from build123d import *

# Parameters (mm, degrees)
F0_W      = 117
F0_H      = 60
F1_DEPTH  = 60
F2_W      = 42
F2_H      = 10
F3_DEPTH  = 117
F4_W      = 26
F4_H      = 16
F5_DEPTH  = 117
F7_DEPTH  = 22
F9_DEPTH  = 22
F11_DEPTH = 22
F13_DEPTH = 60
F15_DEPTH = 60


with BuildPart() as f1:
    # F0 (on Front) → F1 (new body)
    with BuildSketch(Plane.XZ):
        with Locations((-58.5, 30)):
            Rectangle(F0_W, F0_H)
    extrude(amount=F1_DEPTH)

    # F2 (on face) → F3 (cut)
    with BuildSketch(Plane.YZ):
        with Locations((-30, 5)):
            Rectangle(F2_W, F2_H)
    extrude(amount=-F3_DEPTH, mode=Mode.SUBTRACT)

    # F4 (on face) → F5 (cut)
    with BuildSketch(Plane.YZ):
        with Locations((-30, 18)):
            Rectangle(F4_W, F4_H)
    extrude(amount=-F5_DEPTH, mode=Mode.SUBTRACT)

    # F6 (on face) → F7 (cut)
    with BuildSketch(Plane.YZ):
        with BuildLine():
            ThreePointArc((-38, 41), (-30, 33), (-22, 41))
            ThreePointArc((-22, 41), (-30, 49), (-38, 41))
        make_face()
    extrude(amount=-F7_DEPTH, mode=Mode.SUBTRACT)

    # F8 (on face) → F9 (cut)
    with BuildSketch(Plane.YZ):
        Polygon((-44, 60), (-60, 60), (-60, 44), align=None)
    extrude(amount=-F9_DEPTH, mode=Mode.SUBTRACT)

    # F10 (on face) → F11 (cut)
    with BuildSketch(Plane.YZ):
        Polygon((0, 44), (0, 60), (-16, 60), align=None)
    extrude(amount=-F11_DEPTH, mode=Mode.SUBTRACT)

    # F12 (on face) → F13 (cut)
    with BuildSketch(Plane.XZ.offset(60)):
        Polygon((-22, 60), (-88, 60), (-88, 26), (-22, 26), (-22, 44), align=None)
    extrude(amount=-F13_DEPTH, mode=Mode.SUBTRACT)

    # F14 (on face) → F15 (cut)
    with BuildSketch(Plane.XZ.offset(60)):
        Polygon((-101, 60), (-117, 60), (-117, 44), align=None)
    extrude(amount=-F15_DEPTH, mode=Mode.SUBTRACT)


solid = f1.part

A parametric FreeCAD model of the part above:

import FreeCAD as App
import Part
import Sketcher
from FreeCAD import Vector
Q = App.Units.Quantity


def add_polygon(sketch, points):
    """Adds a closed chain of lines whose ends are joined by coincident constraints."""
    first, n = sketch.GeometryCount, len(points)
    for a, b in zip(points, points[1:] + points[:1]):
        sketch.addGeometry(Part.LineSegment(App.Vector(*a, 0), App.Vector(*b, 0)), False)
    for i in range(n):
        sketch.addConstraint(Sketcher.Constraint("Coincident", first + i, 2, first + (i + 1) % n, 1))

doc = App.newDocument("Part")
body = doc.addObject("PartDesign::Body", "Body")

# Sketch on XZ plane
sketch1 = body.newObject("Sketcher::SketchObject", "Sketch")
sketch1.AttachmentSupport = (doc.getObject("XZ_Plane"), [""])
sketch1.MapMode = "FlatFace"
add_polygon(sketch1, [(-117, 60), (-117, 0), (0, 0), (0, 60)])  # lines 0-3
sketch1.addConstraint(Sketcher.Constraint("Vertical", 0))
sketch1.addConstraint(Sketcher.Constraint("Horizontal", 1))
sketch1.addConstraint(Sketcher.Constraint("Vertical", 2))
sketch1.addConstraint(Sketcher.Constraint("Horizontal", 3))
sketch1.addConstraint(Sketcher.Constraint("Coincident", 1, 2, -1, 1))
sketch1.addConstraint(Sketcher.Constraint("DistanceX", 1, 1, 1, 2, Q("117 mm")))
sketch1.addConstraint(Sketcher.Constraint("DistanceY", 0, 2, 0, 1, Q("60 mm")))
pad1 = body.newObject("PartDesign::Pad", "Pad")
pad1.Profile = sketch1
pad1.Length = 60

# Sketch on YZ plane
sketch2 = body.newObject("Sketcher::SketchObject", "Sketch001")
sketch2.AttachmentSupport = (doc.getObject("YZ_Plane"), [""])
sketch2.MapMode = "FlatFace"
add_polygon(sketch2, [(-51, 10), (-51, 0), (-9, 0), (-9, 10)])  # lines 0-3
sketch2.addConstraint(Sketcher.Constraint("Vertical", 0))
sketch2.addConstraint(Sketcher.Constraint("Horizontal", 1))
sketch2.addConstraint(Sketcher.Constraint("Vertical", 2))
sketch2.addConstraint(Sketcher.Constraint("Horizontal", 3))
sketch2.addConstraint(Sketcher.Constraint("PointOnObject", 0, 2, -1))
sketch2.addConstraint(Sketcher.Constraint("DistanceX", 1, 1, 1, 2, Q("42 mm")))
sketch2.addConstraint(Sketcher.Constraint("DistanceY", 0, 2, 0, 1, Q("10 mm")))
sketch2.addConstraint(Sketcher.Constraint("DistanceX", 0, 2, -1, 1, Q("51 mm")))
pocket1 = body.newObject("PartDesign::Pocket", "Pocket")
pocket1.Profile = sketch2
pocket1.Length = 117

# Sketch on YZ plane
sketch3 = body.newObject("Sketcher::SketchObject", "Sketch002")
sketch3.AttachmentSupport = (doc.getObject("YZ_Plane"), [""])
sketch3.MapMode = "FlatFace"
add_polygon(sketch3, [(-43, 26), (-43, 10), (-17, 10), (-17, 26)])  # lines 0-3
sketch3.addConstraint(Sketcher.Constraint("Vertical", 0))
sketch3.addConstraint(Sketcher.Constraint("Horizontal", 1))
sketch3.addConstraint(Sketcher.Constraint("Vertical", 2))
sketch3.addConstraint(Sketcher.Constraint("Horizontal", 3))
sketch3.addConstraint(Sketcher.Constraint("DistanceX", 1, 1, 1, 2, Q("26 mm")))
sketch3.addConstraint(Sketcher.Constraint("DistanceY", 0, 2, 0, 1, Q("16 mm")))
sketch3.addConstraint(Sketcher.Constraint("DistanceX", 0, 2, -1, 1, Q("43 mm")))
sketch3.addConstraint(Sketcher.Constraint("DistanceY", -1, 1, 0, 2, Q("10 mm")))
pocket2 = body.newObject("PartDesign::Pocket", "Pocket001")
pocket2.Profile = sketch3
pocket2.Length = 117

# Sketch on YZ plane
sketch4 = body.newObject("Sketcher::SketchObject", "Sketch003")
sketch4.AttachmentSupport = (doc.getObject("YZ_Plane"), [""])
sketch4.MapMode = "FlatFace"
sketch4.addGeometry(Part.Circle(Vector(-30, 41, 0), Vector(0, 0, 1), 8), False)
sketch4.addConstraint(Sketcher.Constraint("Diameter", 0, Q("16 mm")))
sketch4.addConstraint(Sketcher.Constraint("DistanceX", 0, 3, -1, 1, Q("30 mm")))
sketch4.addConstraint(Sketcher.Constraint("DistanceY", -1, 1, 0, 3, Q("41 mm")))
pocket3 = body.newObject("PartDesign::Pocket", "Pocket002")
pocket3.Profile = sketch4
pocket3.Length = 22

# Sketch on YZ plane
sketch5 = body.newObject("Sketcher::SketchObject", "Sketch004")
sketch5.AttachmentSupport = (doc.getObject("YZ_Plane"), [""])
sketch5.MapMode = "FlatFace"
add_polygon(sketch5, [(-44, 60), (-60, 60), (-60, 44)])  # lines 0-2
sketch5.addConstraint(Sketcher.Constraint("Horizontal", 0))
sketch5.addConstraint(Sketcher.Constraint("Vertical", 1))
sketch5.addConstraint(Sketcher.Constraint("Equal", 0, 1))
sketch5.addConstraint(Sketcher.Constraint("DistanceX", 0, 2, 0, 1, Q("16 mm")))
sketch5.addConstraint(Sketcher.Constraint("DistanceX", 0, 2, -1, 1, Q("60 mm")))
sketch5.addConstraint(Sketcher.Constraint("DistanceY", -1, 1, 0, 2, Q("60 mm")))
pocket4 = body.newObject("PartDesign::Pocket", "Pocket003")
pocket4.Profile = sketch5
pocket4.Length = 22

# Sketch on YZ plane
sketch6 = body.newObject("Sketcher::SketchObject", "Sketch005")
sketch6.AttachmentSupport = (doc.getObject("YZ_Plane"), [""])
sketch6.MapMode = "FlatFace"
add_polygon(sketch6, [(0, 44), (0, 60), (-16, 60)])  # lines 0-2
sketch6.addConstraint(Sketcher.Constraint("Vertical", 0))
sketch6.addConstraint(Sketcher.Constraint("Horizontal", 1))
sketch6.addConstraint(Sketcher.Constraint("PointOnObject", 0, 2, -2))
sketch6.addConstraint(Sketcher.Constraint("Equal", 1, 0))
sketch6.addConstraint(Sketcher.Constraint("DistanceX", 1, 2, 1, 1, Q("16 mm")))
sketch6.addConstraint(Sketcher.Constraint("DistanceY", -1, 1, 0, 2, Q("60 mm")))
pocket5 = body.newObject("PartDesign::Pocket", "Pocket004")
pocket5.Profile = sketch6
pocket5.Length = 22

# Sketch on XZ plane
sketch7 = body.newObject("Sketcher::SketchObject", "Sketch006")
sketch7.AttachmentSupport = (doc.getObject("XZ_Plane"), [""])
sketch7.MapMode = "FlatFace"
sketch7.AttachmentOffset = App.Placement(Vector(0, 0, 60), App.Rotation())
add_polygon(sketch7, [(-22, 60), (-88, 60), (-88, 26), (-22, 26)])  # lines 0-3
sketch7.addConstraint(Sketcher.Constraint("Horizontal", 0))
sketch7.addConstraint(Sketcher.Constraint("Vertical", 1))
sketch7.addConstraint(Sketcher.Constraint("Horizontal", 2))
sketch7.addConstraint(Sketcher.Constraint("Vertical", 3))
sketch7.addConstraint(Sketcher.Constraint("DistanceX", 0, 2, 0, 1, Q("66 mm")))
sketch7.addConstraint(Sketcher.Constraint("DistanceY", 1, 2, 1, 1, Q("34 mm")))
sketch7.addConstraint(Sketcher.Constraint("DistanceX", 0, 2, -1, 1, Q("88 mm")))
sketch7.addConstraint(Sketcher.Constraint("DistanceY", -1, 1, 0, 2, Q("60 mm")))
pocket6 = body.newObject("PartDesign::Pocket", "Pocket005")
pocket6.Profile = sketch7
pocket6.Length = 60

# Sketch on XZ plane
sketch8 = body.newObject("Sketcher::SketchObject", "Sketch007")
sketch8.AttachmentSupport = (doc.getObject("XZ_Plane"), [""])
sketch8.MapMode = "FlatFace"
sketch8.AttachmentOffset = App.Placement(Vector(0, 0, 60), App.Rotation())
add_polygon(sketch8, [(-101, 60), (-117, 60), (-117, 44)])  # lines 0-2
sketch8.addConstraint(Sketcher.Constraint("Horizontal", 0))
sketch8.addConstraint(Sketcher.Constraint("Vertical", 1))
sketch8.addConstraint(Sketcher.Constraint("Equal", 0, 1))
sketch8.addConstraint(Sketcher.Constraint("DistanceX", 0, 2, 0, 1, Q("16 mm")))
sketch8.addConstraint(Sketcher.Constraint("DistanceX", 0, 2, -1, 1, Q("117 mm")))
sketch8.addConstraint(Sketcher.Constraint("DistanceY", -1, 1, 0, 2, Q("60 mm")))
pocket7 = body.newObject("PartDesign::Pocket", "Pocket006")
pocket7.Profile = sketch8
pocket7.Length = 60

doc.recompute()
